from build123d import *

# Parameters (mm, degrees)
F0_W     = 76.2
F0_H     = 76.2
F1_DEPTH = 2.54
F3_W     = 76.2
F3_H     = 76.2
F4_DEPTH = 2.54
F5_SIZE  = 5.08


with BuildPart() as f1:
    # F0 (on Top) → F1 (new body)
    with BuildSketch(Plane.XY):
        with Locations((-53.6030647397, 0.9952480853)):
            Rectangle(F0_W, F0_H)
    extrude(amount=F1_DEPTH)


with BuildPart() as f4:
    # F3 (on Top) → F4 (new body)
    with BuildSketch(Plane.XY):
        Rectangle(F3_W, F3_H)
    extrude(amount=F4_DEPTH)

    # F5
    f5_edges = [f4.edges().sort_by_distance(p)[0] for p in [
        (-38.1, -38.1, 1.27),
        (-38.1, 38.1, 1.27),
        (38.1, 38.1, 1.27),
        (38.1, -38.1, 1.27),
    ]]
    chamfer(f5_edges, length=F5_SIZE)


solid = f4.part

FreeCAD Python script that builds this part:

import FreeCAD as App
import Part
import Sketcher

V = App.Vector
Q = App.Units.Quantity


def edges_at(feature, points):
    """Names of the edges that pass closest to the given points."""
    edges = feature.Shape.Edges
    near = lambda p: min(range(len(edges)), key=lambda i: edges[i].distToShape(Part.Vertex(*p))[0])
    return sorted({f"Edge{near(p) + 1}" for p in points})

doc = App.newDocument("Part")
params = doc.addObject("Spreadsheet::Sheet", "Params")
for row, (alias, value) in enumerate([
    ("sketch1_width", "3 in"),
    ("pad1_length", "0.1 in"),
    ("sketch2_width", "3 in"),
    ("pad2_length", "0.1 in"),
    ("chamfer_size", "0.2 in"),
], start=1):
    params.set(f"A{row}", alias)
    params.set(f"B{row}", "=" + value)
    params.setAlias(f"B{row}", alias)

body = doc.addObject("PartDesign::Body", "Body")

# Sketch on XY plane
sketch1 = doc.addObject("Sketcher::SketchObject", "Sketch")
body.addObject(sketch1)
sketch1.AttachmentSupport = (doc.XY_Plane, [""])
sketch1.MapMode = "FlatFace"
sketch1.addGeometry([
    Part.LineSegment(V(-91.703065, 39.095248, 0), V(-91.703065, -37.104752, 0)),
    Part.LineSegment(V(-91.703065, -37.104752, 0), V(-15.503065, -37.104752, 0)),
    Part.LineSegment(V(-15.503065, -37.104752, 0), V(-15.503065, 39.095248, 0)),
    Part.LineSegment(V(-15.503065, 39.095248, 0), V(-91.703065, 39.095248, 0)),
], False)
sketch1.addConstraint([
    Sketcher.Constraint("Coincident", 0, 2, 1, 1),
    Sketcher.Constraint("Coincident", 1, 2, 2, 1),
    Sketcher.Constraint("Coincident", 2, 2, 3, 1),
    Sketcher.Constraint("Coincident", 3, 2, 0, 1),
    Sketcher.Constraint("Vertical", 0),
    Sketcher.Constraint("Horizontal", 1),
    Sketcher.Constraint("Vertical", 2),
    Sketcher.Constraint("Horizontal", 3),
    Sketcher.Constraint("Equal", 3, 0),
    Sketcher.Constraint("DistanceX", 1, 1, 1, 2, Q("3 in")),
    Sketcher.Constraint("DistanceY", 0, 2, -1, 1, Q("37.104752 mm")),
    Sketcher.Constraint("DistanceX", 0, 2, -1, 1, Q("91.703065 mm")),
])
sketch1.setExpression("Constraints[9]", "Params.sketch1_width")
pad1 = doc.addObject("PartDesign::Pad", "Pad")
body.addObject(pad1)
pad1.Profile = sketch1
pad1.setExpression("Length", "Params.pad1_length")
body2 = doc.addObject("PartDesign::Body", "Body001")

# Sketch on XY plane
sketch2 = doc.addObject("Sketcher::SketchObject", "Sketch001")
body2.addObject(sketch2)
sketch2.AttachmentSupport = (doc.getObject("XY_Plane001"), [""])
sketch2.MapMode = "FlatFace"
sketch2.addGeometry([
    Part.LineSegment(V(-38.1, 38.1, 0), V(-38.1, -38.1, 0)),
    Part.LineSegment(V(-38.1, -38.1, 0), V(38.1, -38.1, 0)),
    Part.LineSegment(V(38.1, -38.1, 0), V(38.1, 38.1, 0)),
    Part.LineSegment(V(38.1, 38.1, 0), V(-38.1, 38.1, 0)),
], False)
sketch2.addConstraint([
    Sketcher.Constraint("Coincident", 0, 2, 1, 1),
    Sketcher.Constraint("Coincident", 1, 2, 2, 1),
    Sketcher.Constraint("Coincident", 2, 2, 3, 1),
    Sketcher.Constraint("Coincident", 3, 2, 0, 1),
    Sketcher.Constraint("Vertical", 0),
    Sketcher.Constraint("Horizontal", 1),
    Sketcher.Constraint("Vertical", 2),
    Sketcher.Constraint("Horizontal", 3),
    Sketcher.Constraint("Symmetric", 0, 2, 2, 2, -1, 1),
    Sketcher.Constraint("Equal", 3, 0),
    Sketcher.Constraint("DistanceX", 1, 1, 1, 2, Q("3 in")),
])
sketch2.setExpression("Constraints[10]", "Params.sketch2_width")
pad2 = doc.addObject("PartDesign::Pad", "Pad001")
body2.addObject(pad2)
pad2.Profile = sketch2
pad2.setExpression("Length", "Params.pad2_length")
doc.recompute()

chamfer = doc.addObject("PartDesign::Chamfer", "Chamfer")
body2.addObject(chamfer)
chamfer.Base = (pad2, edges_at(pad2, [
    (-38.1, -38.1, 1.27),
    (-38.1, 38.1, 1.27),
    (38.1, 38.1, 1.27),
    (38.1, -38.1, 1.27),
]))
chamfer.setExpression("Size", "Params.chamfer_size")
body.Visibility = False

doc.recompute()
